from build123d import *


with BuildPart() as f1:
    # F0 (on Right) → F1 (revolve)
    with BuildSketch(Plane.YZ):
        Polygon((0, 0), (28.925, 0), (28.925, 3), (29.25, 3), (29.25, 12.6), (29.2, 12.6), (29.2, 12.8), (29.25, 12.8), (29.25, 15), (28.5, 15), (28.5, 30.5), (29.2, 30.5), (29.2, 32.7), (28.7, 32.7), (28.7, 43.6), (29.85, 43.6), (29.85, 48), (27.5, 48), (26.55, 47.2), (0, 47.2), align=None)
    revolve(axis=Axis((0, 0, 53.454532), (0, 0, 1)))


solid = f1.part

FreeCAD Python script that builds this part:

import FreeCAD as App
import Part
import Sketcher


def add_polygon(sketch, points):
    """Adds a closed chain of lines whose ends are joined by coincident constraints."""
    first, n = sketch.GeometryCount, len(points)
    for a, b in zip(points, points[1:] + points[:1]):
        sketch.addGeometry(Part.LineSegment(App.Vector(*a, 0), App.Vector(*b, 0)), False)
    for i in range(n):
        sketch.addConstraint(Sketcher.Constraint("Coincident", first + i, 2, first + (i + 1) % n, 1))

doc = App.newDocument("Part")
body = doc.addObject("PartDesign::Body", "Body")

# Sketch on YZ plane
sketch1 = doc.addObject("Sketcher::SketchObject", "Sketch")
body.addObject(sketch1)
sketch1.AttachmentSupport = (doc.YZ_Plane, [""])
sketch1.MapMode = "FlatFace"
add_polygon(sketch1, [(0, 0), (28.93, 0), (28.93, 3), (29.25, 3), (29.25, 12.6), (29.2, 12.6), (29.2, 12.8), (29.25, 12.8), (29.25, 15), (28.5, 15), (28.5, 30.5), (29.2, 30.5), (29.2, 32.7), (28.7, 32.7), (28.7, 43.6), (29.85, 43.6), (29.85, 48), (27.5, 48), (26.55, 47.2), (0, 47.2)])  # lines 0-19
sketch1.addConstraint([
    Sketcher.Constraint("Horizontal", 0),
    Sketcher.Constraint("Vertical", 1),
    Sketcher.Constraint("Horizontal", 2),
    Sketcher.Constraint("Vertical", 3),
    Sketcher.Constraint("Horizontal", 4),
    Sketcher.Constraint("Vertical", 5),
    Sketcher.Constraint("Horizontal", 6),
    Sketcher.Constraint("Vertical", 7),
    Sketcher.Constraint("Horizontal", 8),
    Sketcher.Constraint("Vertical", 9),
    Sketcher.Constraint("Horizontal", 10),
    Sketcher.Constraint("Vertical", 11),
    Sketcher.Constraint("Horizontal", 12),
    Sketcher.Constraint("Vertical", 13),
    Sketcher.Constraint("Horizontal", 14),
    Sketcher.Constraint("Vertical", 15),
    Sketcher.Constraint("Horizontal", 16),
    Sketcher.Constraint("Horizontal", 18),
    Sketcher.Constraint("Vertical", 19),
    Sketcher.Constraint("Coincident", 19, 2, -1, 1),
    Sketcher.Constraint("Vertical", 3, 2, 6, 2),
    Sketcher.Constraint("Vertical", 5, 2, 10, 2),
    Sketcher.Constraint("Equal", 7, 11),
    Sketcher.Constraint("DistanceY", 1, 1, 1, 2, 3.0),
    Sketcher.Constraint("DistanceX", 10, 1, 10, 2, 0.7),
    Sketcher.Constraint("DistanceX", 12, 2, 12, 1, 0.5),
    Sketcher.Constraint("DistanceY", 3, 1, 3, 2, 9.6),
    Sketcher.Constraint("DistanceY", 5, 1, 5, 2, 0.2),
    Sketcher.Constraint("DistanceY", 7, 1, 7, 2, 2.2),
    Sketcher.Constraint("DistanceY", 9, 1, 9, 2, 15.5),
    Sketcher.Constraint("DistanceY", 13, 1, 13, 2, 10.9),
    Sketcher.Constraint("DistanceY", 15, 1, 15, 2, 4.4),
    Sketcher.Constraint("DistanceY", 19, 2, 19, 1, 47.2),
    Sketcher.Constraint("DistanceX", 4, 2, 4, 1, 0.05),
    Sketcher.Constraint("DistanceX", 14, 1, 14, 2, 1.15),
    Sketcher.Constraint("DistanceX", 16, 2, 16, 1, 2.35),
    Sketcher.Constraint("DistanceX", 18, 2, 18, 1, 26.55),
    Sketcher.Constraint("DistanceX", -1, 1, 4, 2, 29.2),
    Sketcher.Constraint("DistanceX", 0, 1, 0, 2, 28.925),
])
revolution = doc.addObject("PartDesign::Revolution", "Revolution")
body.addObject(revolution)
revolution.Profile = sketch1
revolution.ReferenceAxis = (sketch1, ["V_Axis"])
revolution.Angle = 360

doc.recompute()
